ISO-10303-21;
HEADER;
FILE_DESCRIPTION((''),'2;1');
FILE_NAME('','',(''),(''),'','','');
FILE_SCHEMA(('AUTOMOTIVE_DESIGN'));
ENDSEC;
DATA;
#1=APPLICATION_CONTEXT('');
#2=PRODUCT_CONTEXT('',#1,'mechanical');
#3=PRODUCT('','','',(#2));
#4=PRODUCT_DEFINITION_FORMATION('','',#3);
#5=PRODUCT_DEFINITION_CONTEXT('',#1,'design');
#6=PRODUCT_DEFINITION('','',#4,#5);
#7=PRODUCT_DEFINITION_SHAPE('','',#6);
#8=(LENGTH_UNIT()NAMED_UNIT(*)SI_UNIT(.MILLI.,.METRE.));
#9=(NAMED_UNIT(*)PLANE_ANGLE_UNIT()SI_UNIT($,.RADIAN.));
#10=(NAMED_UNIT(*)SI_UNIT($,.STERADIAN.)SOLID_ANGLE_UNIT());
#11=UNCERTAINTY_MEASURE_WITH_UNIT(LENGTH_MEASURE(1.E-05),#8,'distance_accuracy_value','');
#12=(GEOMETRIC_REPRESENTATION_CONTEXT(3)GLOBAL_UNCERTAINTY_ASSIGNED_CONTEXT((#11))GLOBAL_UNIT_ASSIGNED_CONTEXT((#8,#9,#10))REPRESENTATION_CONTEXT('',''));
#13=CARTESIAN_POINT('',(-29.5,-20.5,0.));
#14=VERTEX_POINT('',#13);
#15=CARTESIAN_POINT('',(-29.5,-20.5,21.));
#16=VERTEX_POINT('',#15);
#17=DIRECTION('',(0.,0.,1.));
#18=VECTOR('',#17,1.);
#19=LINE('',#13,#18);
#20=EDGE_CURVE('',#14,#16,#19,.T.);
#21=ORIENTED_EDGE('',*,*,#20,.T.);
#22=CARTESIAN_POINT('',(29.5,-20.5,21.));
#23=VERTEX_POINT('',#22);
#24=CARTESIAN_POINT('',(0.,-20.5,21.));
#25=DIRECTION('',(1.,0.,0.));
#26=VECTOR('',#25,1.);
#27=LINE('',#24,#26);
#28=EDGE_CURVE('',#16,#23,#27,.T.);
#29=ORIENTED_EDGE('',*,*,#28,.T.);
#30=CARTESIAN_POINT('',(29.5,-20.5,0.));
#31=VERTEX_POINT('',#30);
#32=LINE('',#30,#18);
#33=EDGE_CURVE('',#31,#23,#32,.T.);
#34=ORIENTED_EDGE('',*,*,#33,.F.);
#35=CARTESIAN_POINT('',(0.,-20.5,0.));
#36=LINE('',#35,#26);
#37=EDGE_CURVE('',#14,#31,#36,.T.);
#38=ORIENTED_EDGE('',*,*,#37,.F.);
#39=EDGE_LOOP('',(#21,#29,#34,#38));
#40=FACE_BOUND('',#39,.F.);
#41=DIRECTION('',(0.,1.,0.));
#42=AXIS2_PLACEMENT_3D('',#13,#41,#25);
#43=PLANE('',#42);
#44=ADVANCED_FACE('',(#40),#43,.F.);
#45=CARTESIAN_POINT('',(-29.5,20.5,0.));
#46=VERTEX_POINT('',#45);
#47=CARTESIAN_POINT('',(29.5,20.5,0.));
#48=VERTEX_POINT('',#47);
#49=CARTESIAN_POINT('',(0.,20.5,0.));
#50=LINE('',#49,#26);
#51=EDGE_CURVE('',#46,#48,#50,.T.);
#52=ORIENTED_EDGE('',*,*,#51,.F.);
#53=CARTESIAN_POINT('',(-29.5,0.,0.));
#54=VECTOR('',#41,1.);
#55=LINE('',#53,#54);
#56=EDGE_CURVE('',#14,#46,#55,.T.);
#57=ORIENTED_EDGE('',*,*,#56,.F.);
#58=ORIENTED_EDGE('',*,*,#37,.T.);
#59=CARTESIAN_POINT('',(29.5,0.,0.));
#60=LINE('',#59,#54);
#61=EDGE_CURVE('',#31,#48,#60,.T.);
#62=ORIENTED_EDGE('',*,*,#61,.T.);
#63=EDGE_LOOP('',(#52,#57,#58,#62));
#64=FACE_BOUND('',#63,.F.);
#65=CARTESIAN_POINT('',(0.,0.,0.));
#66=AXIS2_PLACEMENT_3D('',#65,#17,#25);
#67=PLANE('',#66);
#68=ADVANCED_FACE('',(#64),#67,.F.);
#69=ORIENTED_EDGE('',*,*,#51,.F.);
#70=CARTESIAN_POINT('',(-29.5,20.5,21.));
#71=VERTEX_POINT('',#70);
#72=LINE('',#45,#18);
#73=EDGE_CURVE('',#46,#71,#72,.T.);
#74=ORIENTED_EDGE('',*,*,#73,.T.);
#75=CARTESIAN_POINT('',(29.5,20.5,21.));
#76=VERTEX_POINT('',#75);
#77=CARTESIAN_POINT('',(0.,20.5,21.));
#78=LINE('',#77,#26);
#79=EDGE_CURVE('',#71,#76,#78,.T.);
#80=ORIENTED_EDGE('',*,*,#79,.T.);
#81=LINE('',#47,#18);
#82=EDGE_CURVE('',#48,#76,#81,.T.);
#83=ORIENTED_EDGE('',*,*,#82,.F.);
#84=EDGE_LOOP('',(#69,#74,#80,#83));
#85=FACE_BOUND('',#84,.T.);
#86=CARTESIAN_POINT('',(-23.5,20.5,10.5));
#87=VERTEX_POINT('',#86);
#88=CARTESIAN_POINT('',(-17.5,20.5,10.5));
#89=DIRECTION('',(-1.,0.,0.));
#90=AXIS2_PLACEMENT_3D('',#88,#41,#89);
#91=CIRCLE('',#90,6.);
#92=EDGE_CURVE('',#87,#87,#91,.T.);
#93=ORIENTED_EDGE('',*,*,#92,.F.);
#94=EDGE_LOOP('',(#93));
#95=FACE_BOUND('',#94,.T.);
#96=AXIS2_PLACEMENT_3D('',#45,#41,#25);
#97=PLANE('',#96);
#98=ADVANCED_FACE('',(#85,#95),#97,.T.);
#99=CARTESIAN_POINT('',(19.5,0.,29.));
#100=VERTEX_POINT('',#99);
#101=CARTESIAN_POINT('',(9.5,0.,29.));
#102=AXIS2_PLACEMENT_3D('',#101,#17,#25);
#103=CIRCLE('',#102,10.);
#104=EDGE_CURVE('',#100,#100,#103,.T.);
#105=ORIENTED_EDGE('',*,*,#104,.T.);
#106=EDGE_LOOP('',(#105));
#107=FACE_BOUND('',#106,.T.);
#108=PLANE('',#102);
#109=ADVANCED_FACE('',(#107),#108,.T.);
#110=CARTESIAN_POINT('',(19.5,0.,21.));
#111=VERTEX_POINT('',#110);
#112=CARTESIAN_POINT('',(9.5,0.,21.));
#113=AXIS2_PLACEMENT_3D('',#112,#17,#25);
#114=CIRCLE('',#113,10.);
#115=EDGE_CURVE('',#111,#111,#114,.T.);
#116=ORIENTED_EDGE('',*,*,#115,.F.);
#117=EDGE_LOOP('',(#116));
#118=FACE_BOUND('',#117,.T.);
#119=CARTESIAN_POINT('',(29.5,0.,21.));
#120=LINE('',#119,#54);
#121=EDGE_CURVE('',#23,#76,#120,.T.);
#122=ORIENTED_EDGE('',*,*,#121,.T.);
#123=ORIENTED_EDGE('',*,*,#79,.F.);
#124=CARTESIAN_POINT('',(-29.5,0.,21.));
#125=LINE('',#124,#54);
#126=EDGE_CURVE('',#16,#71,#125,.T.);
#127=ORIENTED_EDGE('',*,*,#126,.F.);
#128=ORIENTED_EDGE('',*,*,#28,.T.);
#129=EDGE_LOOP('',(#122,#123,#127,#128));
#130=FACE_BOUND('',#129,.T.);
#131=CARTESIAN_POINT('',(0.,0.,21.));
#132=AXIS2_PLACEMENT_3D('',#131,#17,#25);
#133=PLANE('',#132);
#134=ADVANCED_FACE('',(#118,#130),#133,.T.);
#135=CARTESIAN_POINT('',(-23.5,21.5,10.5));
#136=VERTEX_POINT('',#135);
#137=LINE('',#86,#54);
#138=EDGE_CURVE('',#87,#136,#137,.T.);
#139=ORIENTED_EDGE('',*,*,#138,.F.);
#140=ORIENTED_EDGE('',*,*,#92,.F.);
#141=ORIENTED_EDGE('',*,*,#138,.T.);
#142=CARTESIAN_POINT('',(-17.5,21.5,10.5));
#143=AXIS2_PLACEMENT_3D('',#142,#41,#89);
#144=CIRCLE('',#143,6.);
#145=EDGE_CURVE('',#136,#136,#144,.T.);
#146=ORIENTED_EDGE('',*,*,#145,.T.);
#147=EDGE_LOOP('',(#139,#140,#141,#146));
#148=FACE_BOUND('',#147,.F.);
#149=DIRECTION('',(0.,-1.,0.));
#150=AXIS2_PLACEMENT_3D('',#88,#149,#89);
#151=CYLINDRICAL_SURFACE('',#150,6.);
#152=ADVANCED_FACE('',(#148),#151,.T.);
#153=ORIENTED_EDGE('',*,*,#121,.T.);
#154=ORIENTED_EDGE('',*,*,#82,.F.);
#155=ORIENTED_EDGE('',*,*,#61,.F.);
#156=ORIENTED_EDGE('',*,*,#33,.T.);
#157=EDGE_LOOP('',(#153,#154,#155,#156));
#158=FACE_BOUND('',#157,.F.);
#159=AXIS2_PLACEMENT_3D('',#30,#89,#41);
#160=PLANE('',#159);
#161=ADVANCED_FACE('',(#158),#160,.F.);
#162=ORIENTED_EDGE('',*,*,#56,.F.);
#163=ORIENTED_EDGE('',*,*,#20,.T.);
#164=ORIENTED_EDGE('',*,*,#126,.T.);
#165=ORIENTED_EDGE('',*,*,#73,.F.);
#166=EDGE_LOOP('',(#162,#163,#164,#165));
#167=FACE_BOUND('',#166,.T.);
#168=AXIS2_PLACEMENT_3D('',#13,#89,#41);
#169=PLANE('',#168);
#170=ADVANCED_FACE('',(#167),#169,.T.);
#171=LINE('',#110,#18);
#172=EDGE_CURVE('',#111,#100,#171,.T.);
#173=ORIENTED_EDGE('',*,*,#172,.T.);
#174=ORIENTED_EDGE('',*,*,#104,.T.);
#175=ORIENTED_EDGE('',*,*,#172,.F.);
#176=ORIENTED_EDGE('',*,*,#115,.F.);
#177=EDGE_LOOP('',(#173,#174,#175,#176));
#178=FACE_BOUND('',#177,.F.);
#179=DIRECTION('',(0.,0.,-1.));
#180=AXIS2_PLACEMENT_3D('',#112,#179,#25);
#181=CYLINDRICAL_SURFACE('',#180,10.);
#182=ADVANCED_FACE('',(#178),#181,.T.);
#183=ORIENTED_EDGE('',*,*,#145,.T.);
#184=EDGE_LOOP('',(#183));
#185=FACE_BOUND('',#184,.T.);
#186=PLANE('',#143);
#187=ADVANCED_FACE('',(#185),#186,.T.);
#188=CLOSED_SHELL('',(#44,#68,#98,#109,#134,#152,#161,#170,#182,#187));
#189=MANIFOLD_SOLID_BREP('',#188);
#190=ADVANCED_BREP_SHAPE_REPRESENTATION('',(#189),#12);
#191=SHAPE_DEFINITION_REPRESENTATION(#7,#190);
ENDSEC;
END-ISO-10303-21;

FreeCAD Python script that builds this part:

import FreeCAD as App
import Part
import Sketcher
Q = App.Units.Quantity


def add_polygon(sketch, points):
    """Adds a closed chain of lines whose ends are joined by coincident constraints."""
    first, n = sketch.GeometryCount, len(points)
    for a, b in zip(points, points[1:] + points[:1]):
        sketch.addGeometry(Part.LineSegment(App.Vector(*a, 0), App.Vector(*b, 0)), False)
    for i in range(n):
        sketch.addConstraint(Sketcher.Constraint("Coincident", first + i, 2, first + (i + 1) % n, 1))

doc = App.newDocument("Part")
params = doc.addObject("Spreadsheet::Sheet", "Params")
for row, (alias, value) in enumerate([
    ("sketch1_width", "59 mm"),
    ("sketch1_height", "41 mm"),
    ("pad1_length", "21 mm"),
    ("sketch2_diameter", "20 mm"),
    ("pad2_length", "8 mm"),
    ("sketch3_diameter", "12 mm"),
    ("pad3_length", "1 mm"),
], start=1):
    params.set(f"A{row}", alias)
    params.set(f"B{row}", "=" + value)
    params.setAlias(f"B{row}", alias)

body = doc.addObject("PartDesign::Body", "Body")

# Sketch on XY plane
sketch1 = body.newObject("Sketcher::SketchObject", "Sketch")
sketch1.AttachmentSupport = (doc.getObject("XY_Plane"), [""])
sketch1.MapMode = "FlatFace"
add_polygon(sketch1, [(-30, 20), (-30, -20), (30, -20), (30, 20)])  # lines 0-3
sketch1.addConstraint(Sketcher.Constraint("Vertical", 0))
sketch1.addConstraint(Sketcher.Constraint("Horizontal", 1))
sketch1.addConstraint(Sketcher.Constraint("Vertical", 2))
sketch1.addConstraint(Sketcher.Constraint("Horizontal", 3))
sketch1.addConstraint(Sketcher.Constraint("Symmetric", 0, 2, 2, 2, -1, 1))
sketch1.addConstraint(Sketcher.Constraint("DistanceX", 1, 1, 1, 2, Q("59 mm")))
sketch1.addConstraint(Sketcher.Constraint("DistanceY", 0, 2, 0, 1, Q("41 mm")))
sketch1.setExpression("Constraints[9]", "Params.sketch1_width")
sketch1.setExpression("Constraints[10]", "Params.sketch1_height")
pad1 = body.newObject("PartDesign::Pad", "Pad")
pad1.Profile = sketch1
pad1.setExpression("Length", "Params.pad1_length")

# Sketch on XY plane
sketch2 = body.newObject("Sketcher::SketchObject", "Sketch001")
sketch2.AttachmentSupport = (doc.getObject("XY_Plane"), [""])
sketch2.MapMode = "FlatFace"
sketch2.AttachmentOffset = App.Placement(App.Vector(0, 0, 21), App.Rotation())
sketch2.addGeometry(Part.Circle(App.Vector(10, 0, 0), App.Vector(0, 0, 1), 10), False)
sketch2.addConstraint(Sketcher.Constraint("PointOnObject", 0, 3, -1))
sketch2.addConstraint(Sketcher.Constraint("Diameter", 0, Q("20 mm")))
sketch2.addConstraint(Sketcher.Constraint("DistanceX", -1, 1, 0, 3, Q("9.5 mm")))
sketch2.setExpression("Constraints[1]", "Params.sketch2_diameter")
pad2 = body.newObject("PartDesign::Pad", "Pad001")
pad2.Profile = sketch2
pad2.setExpression("Length", "Params.pad2_length")

# Sketch on XZ plane
sketch3 = body.newObject("Sketcher::SketchObject", "Sketch002")
sketch3.AttachmentSupport = (doc.getObject("XZ_Plane"), [""])
sketch3.MapMode = "FlatFace"
sketch3.AttachmentOffset = App.Placement(App.Vector(0, 0, -20.5), App.Rotation())
sketch3.addGeometry(Part.Circle(App.Vector(-18, 10, 0), App.Vector(0, 0, 1), 6), False)
sketch3.addConstraint(Sketcher.Constraint("Diameter", 0, Q("12 mm")))
sketch3.addConstraint(Sketcher.Constraint("DistanceX", 0, 3, -1, 1, Q("17.5 mm")))
sketch3.addConstraint(Sketcher.Constraint("DistanceY", -1, 1, 0, 3, Q("10.5 mm")))
sketch3.setExpression("Constraints[0]", "Params.sketch3_diameter")
pad3 = body.newObject("PartDesign::Pad", "Pad002")
pad3.Profile = sketch3
pad3.setExpression("Length", "Params.pad3_length")
pad3.Reversed = True

doc.recompute()
